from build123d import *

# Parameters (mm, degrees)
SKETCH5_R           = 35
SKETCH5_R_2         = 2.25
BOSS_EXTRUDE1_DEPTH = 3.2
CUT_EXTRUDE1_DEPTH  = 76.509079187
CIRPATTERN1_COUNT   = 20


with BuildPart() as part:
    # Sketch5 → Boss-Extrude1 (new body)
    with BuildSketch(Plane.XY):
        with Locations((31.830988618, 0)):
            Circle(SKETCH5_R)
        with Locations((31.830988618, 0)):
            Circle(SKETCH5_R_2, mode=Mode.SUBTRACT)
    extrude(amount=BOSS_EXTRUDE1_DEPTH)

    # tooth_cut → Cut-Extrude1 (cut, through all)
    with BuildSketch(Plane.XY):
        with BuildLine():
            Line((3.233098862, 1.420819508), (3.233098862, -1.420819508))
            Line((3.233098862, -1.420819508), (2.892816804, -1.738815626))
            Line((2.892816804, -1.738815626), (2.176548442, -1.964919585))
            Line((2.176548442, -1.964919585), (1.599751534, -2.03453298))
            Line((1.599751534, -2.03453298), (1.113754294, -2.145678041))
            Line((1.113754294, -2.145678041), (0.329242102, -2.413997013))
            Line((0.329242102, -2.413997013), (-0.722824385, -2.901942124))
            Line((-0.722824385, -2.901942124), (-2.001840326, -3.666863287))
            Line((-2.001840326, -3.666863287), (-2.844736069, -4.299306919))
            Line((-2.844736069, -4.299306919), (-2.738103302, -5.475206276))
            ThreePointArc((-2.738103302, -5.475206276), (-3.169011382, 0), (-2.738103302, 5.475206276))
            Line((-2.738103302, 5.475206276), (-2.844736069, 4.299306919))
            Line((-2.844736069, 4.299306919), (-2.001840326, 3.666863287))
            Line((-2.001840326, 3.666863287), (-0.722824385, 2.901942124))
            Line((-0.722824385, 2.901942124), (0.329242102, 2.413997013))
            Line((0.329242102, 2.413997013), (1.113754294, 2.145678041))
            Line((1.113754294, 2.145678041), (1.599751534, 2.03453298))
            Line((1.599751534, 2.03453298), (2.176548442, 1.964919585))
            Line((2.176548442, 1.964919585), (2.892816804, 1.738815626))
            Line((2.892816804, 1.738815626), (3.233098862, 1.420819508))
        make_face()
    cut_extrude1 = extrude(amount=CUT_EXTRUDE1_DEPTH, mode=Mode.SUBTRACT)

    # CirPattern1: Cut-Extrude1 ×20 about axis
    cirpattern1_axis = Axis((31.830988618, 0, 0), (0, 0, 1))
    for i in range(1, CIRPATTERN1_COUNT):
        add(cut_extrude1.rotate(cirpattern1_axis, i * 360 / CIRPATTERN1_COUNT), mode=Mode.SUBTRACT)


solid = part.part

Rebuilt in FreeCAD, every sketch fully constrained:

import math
import FreeCAD as App
import Part
import Sketcher
from FreeCAD import Vector

doc = App.newDocument("Part")
body = doc.addObject("PartDesign::Body", "Body")

# Sketch on XY plane
sketch1 = body.newObject("Sketcher::SketchObject", "Sketch")
sketch1.AttachmentSupport = (doc.getObject("XY_Plane"), [""])
sketch1.MapMode = "FlatFace"
sketch1.addGeometry([
    Part.Circle(Vector(31.830989, 0, 0), Vector(0, 0, 1), 35),
    Part.Circle(Vector(31.830989, 0, 0), Vector(0, 0, 1), 2.25),
], False)
sketch1.addConstraint([
    Sketcher.Constraint("Coincident", 1, 3, 0, 3),
    Sketcher.Constraint("PointOnObject", 0, 3, -1),
    Sketcher.Constraint("Diameter", 0, 70.0),
    Sketcher.Constraint("Diameter", 1, 4.5),
    Sketcher.Constraint("DistanceX", -1, 1, 0, 3, 31.830989),
])
pad1 = body.newObject("PartDesign::Pad", "Pad")
pad1.Profile = sketch1
pad1.Length = 3.2

# Sketch on XY plane
sketch2 = body.newObject("Sketcher::SketchObject", "Sketch001")
sketch2.AttachmentSupport = (doc.getObject("XY_Plane"), [""])
sketch2.MapMode = "FlatFace"
sketch2.addGeometry([
    Part.LineSegment(Vector(3.233099, -1.42082, 0), Vector(3.233099, 1.42082, 0)),  # 0
    Part.LineSegment(Vector(3.233099, 1.42082, 0), Vector(2.892817, 1.738816, 0)),  # 1
    Part.LineSegment(Vector(2.892817, 1.738816, 0), Vector(2.176548, 1.96492, 0)),  # 2
    Part.LineSegment(Vector(2.176548, 1.96492, 0), Vector(1.599752, 2.034533, 0)),  # 3
    Part.LineSegment(Vector(1.599752, 2.034533, 0), Vector(1.113754, 2.145678, 0)),  # 4
    Part.LineSegment(Vector(1.113754, 2.145678, 0), Vector(0.329242, 2.413997, 0)),  # 5
    Part.LineSegment(Vector(0.329242, 2.413997, 0), Vector(-0.722824, 2.901942, 0)),  # 6
    Part.LineSegment(Vector(-0.722824, 2.901942, 0), Vector(-2.00184, 3.666863, 0)),  # 7
    Part.LineSegment(Vector(-2.00184, 3.666863, 0), Vector(-2.844736, 4.299307, 0)),  # 8
    Part.LineSegment(Vector(-2.844736, 4.299307, 0), Vector(-2.738103, 5.475206, 0)),  # 9
    Part.ArcOfCircle(Part.Circle(Vector(31.830989, 0, 0), Vector(0, 0, 1), 35), math.radians(171), math.radians(189)),  # 10
    Part.LineSegment(Vector(-2.738103, -5.475206, 0), Vector(-2.844736, -4.299307, 0)),  # 11
    Part.LineSegment(Vector(-2.844736, -4.299307, 0), Vector(-2.00184, -3.666863, 0)),  # 12
    Part.LineSegment(Vector(-2.00184, -3.666863, 0), Vector(-0.722824, -2.901942, 0)),  # 13
    Part.LineSegment(Vector(-0.722824, -2.901942, 0), Vector(0.329242, -2.413997, 0)),  # 14
    Part.LineSegment(Vector(0.329242, -2.413997, 0), Vector(1.113754, -2.145678, 0)),  # 15
    Part.LineSegment(Vector(1.113754, -2.145678, 0), Vector(1.599752, -2.034533, 0)),  # 16
    Part.LineSegment(Vector(1.599752, -2.034533, 0), Vector(2.176548, -1.96492, 0)),  # 17
    Part.LineSegment(Vector(2.176548, -1.96492, 0), Vector(2.892817, -1.738816, 0)),  # 18
    Part.LineSegment(Vector(2.892817, -1.738816, 0), Vector(3.233099, -1.42082, 0)),  # 19
], False)
sketch2.addConstraint([
    Sketcher.Constraint("Coincident", 0, 2, 1, 1),
    Sketcher.Constraint("Coincident", 1, 2, 2, 1),
    Sketcher.Constraint("Coincident", 2, 2, 3, 1),
    Sketcher.Constraint("Coincident", 3, 2, 4, 1),
    Sketcher.Constraint("Coincident", 4, 2, 5, 1),
    Sketcher.Constraint("Coincident", 5, 2, 6, 1),
    Sketcher.Constraint("Coincident", 6, 2, 7, 1),
    Sketcher.Constraint("Coincident", 7, 2, 8, 1),
    Sketcher.Constraint("Coincident", 8, 2, 9, 1),
    Sketcher.Constraint("Coincident", 9, 2, 10, 1),
    Sketcher.Constraint("Coincident", 10, 2, 11, 1),
    Sketcher.Constraint("Coincident", 11, 2, 12, 1),
    Sketcher.Constraint("Coincident", 12, 2, 13, 1),
    Sketcher.Constraint("Coincident", 13, 2, 14, 1),
    Sketcher.Constraint("Coincident", 14, 2, 15, 1),
    Sketcher.Constraint("Coincident", 15, 2, 16, 1),
    Sketcher.Constraint("Coincident", 16, 2, 17, 1),
    Sketcher.Constraint("Coincident", 17, 2, 18, 1),
    Sketcher.Constraint("Coincident", 18, 2, 19, 1),
    Sketcher.Constraint("Coincident", 19, 2, 0, 1),
    Sketcher.Constraint("Vertical", 0),
    Sketcher.Constraint("Symmetric", 9, 2, 10, 2, -1),
    Sketcher.Constraint("Symmetric", 8, 2, 11, 2, -1),
    Sketcher.Constraint("Symmetric", 7, 2, 12, 2, -1),
    Sketcher.Constraint("Symmetric", 6, 2, 13, 2, -1),
    Sketcher.Constraint("Symmetric", 5, 2, 14, 2, -1),
    Sketcher.Constraint("Symmetric", 4, 2, 15, 2, -1),
    Sketcher.Constraint("Symmetric", 3, 2, 16, 2, -1),
    Sketcher.Constraint("Symmetric", 2, 2, 17, 2, -1),
    Sketcher.Constraint("Symmetric", 1, 2, 18, 2, -1),
    Sketcher.Constraint("Equal", 1, 19),
    Sketcher.Constraint("Radius", 10, 35.0),
    Sketcher.Constraint("DistanceY", 0, 1, 0, 2, 2.841639),
    Sketcher.Constraint("DistanceX", -1, 1, 0, 2, 3.233099),
    Sketcher.Constraint("DistanceY", 0, 2, 2, 2, 0.5441),
    Sketcher.Constraint("DistanceY", 8, 2, 9, 2, 1.175899),
    Sketcher.Constraint("Distance", 1, 0.46574),
    Sketcher.Constraint("Distance", 2, 0.751108),
    Sketcher.Constraint("Distance", 5, 0.829129),
    Sketcher.Constraint("DistanceX", -1, 1, 10, 3, 31.830989),
    Sketcher.Constraint("DistanceX", -1, 1, 2, 2, 2.176548),
    Sketcher.Constraint("DistanceX", -1, 1, 3, 2, 1.599752),
    Sketcher.Constraint("DistanceY", -1, 1, 4, 2, 2.145678),
    Sketcher.Constraint("DistanceX", 7, 2, -1, 1, 2.00184),
    Sketcher.Constraint("DistanceY", 4, 2, 5, 2, 0.268319),
    Sketcher.Constraint("DistanceX", 5, 2, 3, 2, 1.270509),
    Sketcher.Constraint("DistanceX", 6, 2, 4, 2, 1.836579),
    Sketcher.Constraint("DistanceY", 3, 2, 6, 2, 0.867409),
    Sketcher.Constraint("DistanceY", 6, 2, 7, 2, 0.764921),
    Sketcher.Constraint("DistanceX", 8, 2, 6, 2, 2.121912),
    Sketcher.Constraint("DistanceY", 5, 2, 8, 2, 1.88531),
    Sketcher.Constraint("DistanceY", 10, 2, 6, 2, 8.377148),
])
pocket1 = body.newObject("PartDesign::Pocket", "Pocket")
pocket1.Profile = sketch2
pocket1.Type = "ThroughAll"
pocket1.Reversed = True
doc.recompute()

datumline = body.newObject("PartDesign::Line", "DatumLine")
datumline.Placement = App.Placement(Vector(31.830989, 0, 0), App.Rotation(Vector(0, 0, 1), Vector(0, 0, 1)))
polarpattern = body.newObject("PartDesign::PolarPattern", "PolarPattern")
polarpattern.Originals = [pocket1]
polarpattern.Axis = (datumline, [""])
polarpattern.Angle = 360
polarpattern.Occurrences = 20
body.Tip = polarpattern

doc.recompute()
